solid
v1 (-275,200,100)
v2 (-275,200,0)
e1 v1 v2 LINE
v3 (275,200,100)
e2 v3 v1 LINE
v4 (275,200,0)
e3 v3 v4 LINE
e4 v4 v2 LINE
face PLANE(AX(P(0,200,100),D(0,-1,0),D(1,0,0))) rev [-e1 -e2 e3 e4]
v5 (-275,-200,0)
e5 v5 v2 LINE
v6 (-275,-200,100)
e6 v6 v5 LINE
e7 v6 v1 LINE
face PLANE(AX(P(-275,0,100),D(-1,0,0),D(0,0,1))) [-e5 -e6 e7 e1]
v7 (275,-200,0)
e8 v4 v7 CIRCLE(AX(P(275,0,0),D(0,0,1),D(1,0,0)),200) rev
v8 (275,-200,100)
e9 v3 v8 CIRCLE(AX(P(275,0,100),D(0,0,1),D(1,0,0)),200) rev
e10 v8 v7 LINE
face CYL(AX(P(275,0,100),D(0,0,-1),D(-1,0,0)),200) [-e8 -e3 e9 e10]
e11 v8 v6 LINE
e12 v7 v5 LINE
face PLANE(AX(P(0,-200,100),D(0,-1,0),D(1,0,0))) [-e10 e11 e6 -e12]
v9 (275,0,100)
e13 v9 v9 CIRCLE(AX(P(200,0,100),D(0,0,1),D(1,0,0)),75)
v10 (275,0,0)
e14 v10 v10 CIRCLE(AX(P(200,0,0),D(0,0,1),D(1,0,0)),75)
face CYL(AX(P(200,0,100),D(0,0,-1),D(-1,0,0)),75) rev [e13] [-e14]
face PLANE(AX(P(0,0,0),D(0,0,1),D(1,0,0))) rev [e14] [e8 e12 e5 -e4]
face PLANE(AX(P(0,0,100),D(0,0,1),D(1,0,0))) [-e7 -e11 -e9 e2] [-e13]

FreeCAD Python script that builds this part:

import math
import FreeCAD as App
import Part
import Sketcher
Q = App.Units.Quantity

doc = App.newDocument("Part")
body = doc.addObject("PartDesign::Body", "Body")

# Sketch on XY plane
sketch1 = body.newObject("Sketcher::SketchObject", "Sketch")
sketch1.AttachmentSupport = (doc.getObject("XY_Plane"), [""])
sketch1.MapMode = "FlatFace"
sketch1.addGeometry([
    Part.LineSegment(App.Vector(-275, -200, 0), App.Vector(275, -200, 0)),  # 0
    Part.ArcOfCircle(Part.Circle(App.Vector(275, 0, 0), App.Vector(0, 0, 1), 200), math.radians(-90), math.radians(90)),  # 1
    Part.LineSegment(App.Vector(275, 200, 0), App.Vector(-275, 200, 0)),  # 2
    Part.LineSegment(App.Vector(-275, 200, 0), App.Vector(-275, -200, 0)),  # 3
    Part.Circle(App.Vector(200, 0, 0), App.Vector(0, 0, 1), 75),  # 4
], False)
sketch1.addConstraint([
    Sketcher.Constraint("Tangent", 0, 2, 1, 1),
    Sketcher.Constraint("Tangent", 1, 2, 2, 1),
    Sketcher.Constraint("Coincident", 2, 2, 3, 1),
    Sketcher.Constraint("Coincident", 3, 2, 0, 1),
    Sketcher.Constraint("Horizontal", 0),
    Sketcher.Constraint("Horizontal", 2),
    Sketcher.Constraint("Vertical", 3),
    Sketcher.Constraint("Symmetric", 0, 2, 2, 2, -1, 1),
    Sketcher.Constraint("PointOnObject", 4, 3, -1),
    Sketcher.Constraint("Diameter", 4, Q("150 mm")),
    Sketcher.Constraint("Radius", 1, Q("200 mm")),
    Sketcher.Constraint("DistanceX", 0, 1, 0, 2, Q("550 mm")),
    Sketcher.Constraint("DistanceX", -1, 1, 4, 3, Q("200 mm")),
])
pad1 = body.newObject("PartDesign::Pad", "Pad")
pad1.Profile = sketch1
pad1.Length = 100

doc.recompute()
